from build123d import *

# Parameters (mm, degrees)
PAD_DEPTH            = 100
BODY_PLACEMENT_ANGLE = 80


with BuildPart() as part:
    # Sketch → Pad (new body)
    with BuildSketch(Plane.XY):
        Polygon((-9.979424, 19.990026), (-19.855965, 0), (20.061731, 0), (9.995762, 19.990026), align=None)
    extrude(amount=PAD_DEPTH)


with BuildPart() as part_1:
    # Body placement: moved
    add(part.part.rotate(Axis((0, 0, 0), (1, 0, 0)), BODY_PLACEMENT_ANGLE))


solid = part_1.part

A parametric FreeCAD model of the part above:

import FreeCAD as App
import Part
import Sketcher

V = App.Vector
Q = App.Units.Quantity


def add_polygon(sketch, points):
    """Adds a closed chain of lines whose ends are joined by coincident constraints."""
    first, n = sketch.GeometryCount, len(points)
    for a, b in zip(points, points[1:] + points[:1]):
        sketch.addGeometry(Part.LineSegment(App.Vector(*a, 0), App.Vector(*b, 0)), False)
    for i in range(n):
        sketch.addConstraint(Sketcher.Constraint("Coincident", first + i, 2, first + (i + 1) % n, 1))

doc = App.newDocument("Part")
body = doc.addObject("PartDesign::Body", "Body")

# Sketch on XY plane
sketch1 = body.newObject("Sketcher::SketchObject", "Sketch")
sketch1.AttachmentSupport = (doc.getObject("XY_Plane"), [""])
sketch1.MapMode = "FlatFace"
add_polygon(sketch1, [(-10, 20), (-20, 0), (20, 0), (10, 20)])  # lines 0-3
sketch1.addConstraint([
    Sketcher.Constraint("Horizontal", 1),
    Sketcher.Constraint("Horizontal", 3),
    Sketcher.Constraint("PointOnObject", 0, 2, -1),
    Sketcher.Constraint("Distance", 0, Q("22.296798 mm")),
    Sketcher.Constraint("Distance", 2, Q("22.381351 mm")),
    Sketcher.Constraint("DistanceX", 1, 1, 1, 2, Q("39.917696 mm")),
    Sketcher.Constraint("DistanceX", 3, 2, 3, 1, Q("19.975186 mm")),
    Sketcher.Constraint("DistanceX", -1, 1, 1, 2, Q("20.061731 mm")),
])
pad1 = body.newObject("PartDesign::Pad", "Pad")
pad1.Profile = sketch1
pad1.Length = 100
body2 = doc.addObject("PartDesign::Body", "Body001")
doc.recompute()

body.Placement = App.Placement(V(0, 0, 0), App.Rotation(V(1, 0, 0), 80))
boolean = body2.newObject("PartDesign::Boolean", "Boolean")
boolean.Type = "Fuse"
boolean.addObjects([body])

doc.recompute()
